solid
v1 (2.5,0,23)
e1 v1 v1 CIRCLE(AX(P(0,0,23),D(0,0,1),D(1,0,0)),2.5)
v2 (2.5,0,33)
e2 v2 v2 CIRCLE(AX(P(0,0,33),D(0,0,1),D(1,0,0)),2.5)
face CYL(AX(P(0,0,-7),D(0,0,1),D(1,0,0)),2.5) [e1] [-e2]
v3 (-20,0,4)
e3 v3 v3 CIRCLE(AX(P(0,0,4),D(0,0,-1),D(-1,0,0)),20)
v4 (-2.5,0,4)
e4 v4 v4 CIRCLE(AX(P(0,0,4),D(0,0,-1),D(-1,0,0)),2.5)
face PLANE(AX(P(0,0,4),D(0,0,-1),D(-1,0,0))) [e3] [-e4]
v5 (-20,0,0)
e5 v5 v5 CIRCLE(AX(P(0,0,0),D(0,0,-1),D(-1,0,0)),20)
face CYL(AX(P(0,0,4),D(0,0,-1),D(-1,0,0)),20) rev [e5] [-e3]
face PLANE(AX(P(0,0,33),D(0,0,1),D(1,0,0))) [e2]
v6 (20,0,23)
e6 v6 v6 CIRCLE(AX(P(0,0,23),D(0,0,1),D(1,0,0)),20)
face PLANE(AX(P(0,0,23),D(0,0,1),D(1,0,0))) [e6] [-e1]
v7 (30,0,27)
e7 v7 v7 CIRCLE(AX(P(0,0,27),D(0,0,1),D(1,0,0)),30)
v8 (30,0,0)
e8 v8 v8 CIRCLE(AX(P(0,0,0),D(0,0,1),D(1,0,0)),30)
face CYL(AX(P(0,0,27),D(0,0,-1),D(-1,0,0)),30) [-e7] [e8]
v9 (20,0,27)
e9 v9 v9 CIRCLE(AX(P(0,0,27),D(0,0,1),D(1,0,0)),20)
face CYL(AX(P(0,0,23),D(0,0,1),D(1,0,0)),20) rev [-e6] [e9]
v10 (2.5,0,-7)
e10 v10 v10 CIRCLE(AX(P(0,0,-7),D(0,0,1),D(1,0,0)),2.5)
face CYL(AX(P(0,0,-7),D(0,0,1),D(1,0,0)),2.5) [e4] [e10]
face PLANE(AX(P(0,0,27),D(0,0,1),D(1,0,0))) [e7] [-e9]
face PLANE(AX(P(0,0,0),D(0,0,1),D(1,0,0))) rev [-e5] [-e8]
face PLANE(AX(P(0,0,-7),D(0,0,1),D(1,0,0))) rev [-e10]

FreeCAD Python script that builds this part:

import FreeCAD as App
import Part
import Sketcher
from FreeCAD import Vector

doc = App.newDocument("Part")
params = doc.addObject("Spreadsheet::Sheet", "Params")
for row, (alias, value) in enumerate([
    ("sketch1_diameter", "60 mm"),
    ("pad1_length", "27 mm"),
    ("sketch2_diameter", "40 mm"),
    ("pocket1_length", "4 mm"),
    ("sketch3_diameter", "40 mm"),
    ("pocket2_length", "4 mm"),
    ("sketch4_diameter", "5 mm"),
    ("pad2_length", "10 mm"),
    ("pad2_length2", "30 mm"),
], start=1):
    params.set(f"A{row}", alias)
    params.set(f"B{row}", "=" + value)
    params.setAlias(f"B{row}", alias)

body = doc.addObject("PartDesign::Body", "Body")

sketch1 = body.newObject("Sketcher::SketchObject", "Sketch")
sketch1.AttachmentSupport = (doc.getObject("XY_Plane"), [""])
sketch1.MapMode = "FlatFace"
sketch1.addGeometry(Part.Circle(Vector(0, 0, 0), Vector(0, 0, 1), 30), False)
sketch1.addConstraint(Sketcher.Constraint("Coincident", 0, 3, -1, 1))
sketch1.addConstraint(Sketcher.Constraint("Diameter", 0, 60.0))
sketch1.setExpression("Constraints[1]", "Params.sketch1_diameter")
pad1 = body.newObject("PartDesign::Pad", "Pad")
pad1.Profile = sketch1
pad1.setExpression("Length", "Params.pad1_length")

sketch2 = body.newObject("Sketcher::SketchObject", "Sketch001")
sketch2.AttachmentSupport = (doc.getObject("XY_Plane"), [""])
sketch2.MapMode = "FlatFace"
sketch2.AttachmentOffset = App.Placement(Vector(0, 0, 27), App.Rotation())
sketch2.addGeometry(Part.Circle(Vector(0, 0, 0), Vector(0, 0, 1), 20), False)
sketch2.addConstraint(Sketcher.Constraint("Coincident", 0, 3, -1, 1))
sketch2.addConstraint(Sketcher.Constraint("Diameter", 0, 40.0))
sketch2.setExpression("Constraints[1]", "Params.sketch2_diameter")
pocket1 = body.newObject("PartDesign::Pocket", "Pocket")
pocket1.Profile = sketch2
pocket1.setExpression("Length", "Params.pocket1_length")

sketch3 = body.newObject("Sketcher::SketchObject", "Sketch002")
sketch3.AttachmentSupport = (doc.getObject("XY_Plane"), [""])
sketch3.MapMode = "FlatFace"
sketch3.AttachmentOffset = App.Placement(Vector(0, 0, 4), App.Rotation())
sketch3.addGeometry(Part.Circle(Vector(0, 0, 0), Vector(0, 0, 1), 20), False)
sketch3.addConstraint(Sketcher.Constraint("Coincident", 0, 3, -1, 1))
sketch3.addConstraint(Sketcher.Constraint("Diameter", 0, 40.0))
sketch3.setExpression("Constraints[1]", "Params.sketch3_diameter")
pocket2 = body.newObject("PartDesign::Pocket", "Pocket001")
pocket2.Profile = sketch3
pocket2.setExpression("Length", "Params.pocket2_length")

sketch4 = body.newObject("Sketcher::SketchObject", "Sketch003")
sketch4.AttachmentSupport = (doc.getObject("XY_Plane"), [""])
sketch4.MapMode = "FlatFace"
sketch4.AttachmentOffset = App.Placement(Vector(0, 0, 23), App.Rotation())
sketch4.addGeometry(Part.Circle(Vector(0, 0, 0), Vector(0, 0, 1), 2.5), False)
sketch4.addConstraint(Sketcher.Constraint("Coincident", 0, 3, -1, 1))
sketch4.addConstraint(Sketcher.Constraint("Diameter", 0, 5.0))
sketch4.setExpression("Constraints[1]", "Params.sketch4_diameter")
pad2 = body.newObject("PartDesign::Pad", "Pad001")
pad2.Profile = sketch4
pad2.Type = "TwoLengths"
pad2.setExpression("Length", "Params.pad2_length")
pad2.setExpression("Length2", "Params.pad2_length2")

doc.recompute()
